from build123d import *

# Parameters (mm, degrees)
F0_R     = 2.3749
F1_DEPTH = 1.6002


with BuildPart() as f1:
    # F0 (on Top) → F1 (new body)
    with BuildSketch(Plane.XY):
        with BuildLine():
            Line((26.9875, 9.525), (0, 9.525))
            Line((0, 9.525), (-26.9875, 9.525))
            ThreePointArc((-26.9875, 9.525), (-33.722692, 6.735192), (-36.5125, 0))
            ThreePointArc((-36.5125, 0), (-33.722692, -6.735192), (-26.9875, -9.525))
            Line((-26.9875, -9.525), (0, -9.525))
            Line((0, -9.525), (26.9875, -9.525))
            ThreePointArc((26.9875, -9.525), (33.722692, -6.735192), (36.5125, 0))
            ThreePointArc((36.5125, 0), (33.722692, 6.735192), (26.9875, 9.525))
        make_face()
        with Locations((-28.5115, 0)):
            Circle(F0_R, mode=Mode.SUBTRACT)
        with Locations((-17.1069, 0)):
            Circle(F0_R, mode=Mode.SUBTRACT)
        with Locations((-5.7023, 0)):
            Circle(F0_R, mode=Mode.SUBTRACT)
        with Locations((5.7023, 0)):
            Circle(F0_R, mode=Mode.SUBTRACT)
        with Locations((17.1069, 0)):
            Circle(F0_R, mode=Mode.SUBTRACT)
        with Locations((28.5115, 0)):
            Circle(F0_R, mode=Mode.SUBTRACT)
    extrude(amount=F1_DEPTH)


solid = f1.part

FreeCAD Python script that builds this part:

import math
import FreeCAD as App
import Part
import Sketcher

V = App.Vector
Q = App.Units.Quantity

doc = App.newDocument("Part")
body = doc.addObject("PartDesign::Body", "Body")

# Sketch on XY plane
sketch1 = doc.addObject("Sketcher::SketchObject", "Sketch")
body.addObject(sketch1)
sketch1.AttachmentSupport = (doc.XY_Plane, [""])
sketch1.MapMode = "FlatFace"
sketch1.addGeometry(Part.LineSegment(V(27, 9.5, 0), V(-27, 9.5, 0)), False)
sketch1.addGeometry(Part.ArcOfCircle(Part.Circle(V(-27, 0, 0), V(0, 0, 1), 9.5), math.radians(90), math.radians(180)), False)
sketch1.addGeometry(Part.ArcOfCircle(Part.Circle(V(-27, 0, 0), V(0, 0, 1), 9.5), math.radians(-180), math.radians(-90)), False)
sketch1.addGeometry(Part.LineSegment(V(-27, -9.5, 0), V(27, -9.5, 0)), False)
sketch1.addGeometry(Part.ArcOfCircle(Part.Circle(V(27, 0, 0), V(0, 0, 1), 9.5), math.radians(-90), math.radians(0)), False)
sketch1.addGeometry(Part.ArcOfCircle(Part.Circle(V(27, 0, 0), V(0, 0, 1), 9.5), math.radians(0), math.radians(90)), False)
sketch1.addGeometry(Part.Circle(V(-28.5, 0, 0), V(0, 0, 1), 2.4), False)
sketch1.addGeometry(Part.Circle(V(-17.1, 0, 0), V(0, 0, 1), 2.4), False)
sketch1.addGeometry(Part.Circle(V(-5.7, 0, 0), V(0, 0, 1), 2.4), False)
sketch1.addGeometry(Part.Circle(V(5.7, 0, 0), V(0, 0, 1), 2.4), False)
sketch1.addGeometry(Part.Circle(V(17.1, 0, 0), V(0, 0, 1), 2.4), False)
sketch1.addGeometry(Part.Circle(V(28.5, 0, 0), V(0, 0, 1), 2.4), False)
sketch1.addConstraint(Sketcher.Constraint("Tangent", 0, 2, 1, 1))
sketch1.addConstraint(Sketcher.Constraint("Tangent", 1, 2, 2, 1))
sketch1.addConstraint(Sketcher.Constraint("Tangent", 2, 2, 3, 1))
sketch1.addConstraint(Sketcher.Constraint("Tangent", 3, 2, 4, 1))
sketch1.addConstraint(Sketcher.Constraint("Tangent", 4, 2, 5, 1))
sketch1.addConstraint(Sketcher.Constraint("Tangent", 5, 2, 0, 1))
sketch1.addConstraint(Sketcher.Constraint("Horizontal", 0))
sketch1.addConstraint(Sketcher.Constraint("Horizontal", 3))
sketch1.addConstraint(Sketcher.Constraint("Equal", 1, 2))
sketch1.addConstraint(Sketcher.Constraint("Equal", 2, 4))
sketch1.addConstraint(Sketcher.Constraint("Equal", 6, 7))
sketch1.addConstraint(Sketcher.Constraint("Equal", 7, 8))
sketch1.addConstraint(Sketcher.Constraint("Equal", 8, 9))
sketch1.addConstraint(Sketcher.Constraint("Equal", 9, 10))
sketch1.addConstraint(Sketcher.Constraint("Equal", 10, 11))
sketch1.addConstraint(Sketcher.Constraint("Symmetric", 1, 3, 4, 3, -1, 1))
sketch1.addConstraint(Sketcher.Constraint("Symmetric", 8, 3, 9, 3, -1, 1))
sketch1.addConstraint(Sketcher.Constraint("Symmetric", 7, 3, 10, 3, -1, 1))
sketch1.addConstraint(Sketcher.Constraint("Symmetric", 6, 3, 11, 3, -1, 1))
sketch1.addConstraint(Sketcher.Constraint("PointOnObject", 6, 3, -1))
sketch1.addConstraint(Sketcher.Constraint("PointOnObject", 7, 3, -1))
sketch1.addConstraint(Sketcher.Constraint("PointOnObject", 8, 3, -1))
sketch1.addConstraint(Sketcher.Constraint("PointOnObject", 1, 2, -1))
sketch1.addConstraint(Sketcher.Constraint("PointOnObject", 4, 2, -1))
sketch1.addConstraint(Sketcher.Constraint("Diameter", 6, Q("0.187 in")))
sketch1.addConstraint(Sketcher.Constraint("Radius", 1, Q("0.375 in")))
sketch1.addConstraint(Sketcher.Constraint("DistanceX", 0, 2, 0, 1, Q("2.125 in")))
sketch1.addConstraint(Sketcher.Constraint("DistanceX", 6, 3, 1, 3, Q("0.06 in")))
sketch1.addConstraint(Sketcher.Constraint("DistanceX", 1, 3, 7, 3, Q("0.389 in")))
sketch1.addConstraint(Sketcher.Constraint("DistanceX", 7, 3, 8, 3, Q("0.449 in")))
pad1 = doc.addObject("PartDesign::Pad", "Pad")
body.addObject(pad1)
pad1.Profile = sketch1
pad1.Length = Q("0.063 in")

doc.recompute()
